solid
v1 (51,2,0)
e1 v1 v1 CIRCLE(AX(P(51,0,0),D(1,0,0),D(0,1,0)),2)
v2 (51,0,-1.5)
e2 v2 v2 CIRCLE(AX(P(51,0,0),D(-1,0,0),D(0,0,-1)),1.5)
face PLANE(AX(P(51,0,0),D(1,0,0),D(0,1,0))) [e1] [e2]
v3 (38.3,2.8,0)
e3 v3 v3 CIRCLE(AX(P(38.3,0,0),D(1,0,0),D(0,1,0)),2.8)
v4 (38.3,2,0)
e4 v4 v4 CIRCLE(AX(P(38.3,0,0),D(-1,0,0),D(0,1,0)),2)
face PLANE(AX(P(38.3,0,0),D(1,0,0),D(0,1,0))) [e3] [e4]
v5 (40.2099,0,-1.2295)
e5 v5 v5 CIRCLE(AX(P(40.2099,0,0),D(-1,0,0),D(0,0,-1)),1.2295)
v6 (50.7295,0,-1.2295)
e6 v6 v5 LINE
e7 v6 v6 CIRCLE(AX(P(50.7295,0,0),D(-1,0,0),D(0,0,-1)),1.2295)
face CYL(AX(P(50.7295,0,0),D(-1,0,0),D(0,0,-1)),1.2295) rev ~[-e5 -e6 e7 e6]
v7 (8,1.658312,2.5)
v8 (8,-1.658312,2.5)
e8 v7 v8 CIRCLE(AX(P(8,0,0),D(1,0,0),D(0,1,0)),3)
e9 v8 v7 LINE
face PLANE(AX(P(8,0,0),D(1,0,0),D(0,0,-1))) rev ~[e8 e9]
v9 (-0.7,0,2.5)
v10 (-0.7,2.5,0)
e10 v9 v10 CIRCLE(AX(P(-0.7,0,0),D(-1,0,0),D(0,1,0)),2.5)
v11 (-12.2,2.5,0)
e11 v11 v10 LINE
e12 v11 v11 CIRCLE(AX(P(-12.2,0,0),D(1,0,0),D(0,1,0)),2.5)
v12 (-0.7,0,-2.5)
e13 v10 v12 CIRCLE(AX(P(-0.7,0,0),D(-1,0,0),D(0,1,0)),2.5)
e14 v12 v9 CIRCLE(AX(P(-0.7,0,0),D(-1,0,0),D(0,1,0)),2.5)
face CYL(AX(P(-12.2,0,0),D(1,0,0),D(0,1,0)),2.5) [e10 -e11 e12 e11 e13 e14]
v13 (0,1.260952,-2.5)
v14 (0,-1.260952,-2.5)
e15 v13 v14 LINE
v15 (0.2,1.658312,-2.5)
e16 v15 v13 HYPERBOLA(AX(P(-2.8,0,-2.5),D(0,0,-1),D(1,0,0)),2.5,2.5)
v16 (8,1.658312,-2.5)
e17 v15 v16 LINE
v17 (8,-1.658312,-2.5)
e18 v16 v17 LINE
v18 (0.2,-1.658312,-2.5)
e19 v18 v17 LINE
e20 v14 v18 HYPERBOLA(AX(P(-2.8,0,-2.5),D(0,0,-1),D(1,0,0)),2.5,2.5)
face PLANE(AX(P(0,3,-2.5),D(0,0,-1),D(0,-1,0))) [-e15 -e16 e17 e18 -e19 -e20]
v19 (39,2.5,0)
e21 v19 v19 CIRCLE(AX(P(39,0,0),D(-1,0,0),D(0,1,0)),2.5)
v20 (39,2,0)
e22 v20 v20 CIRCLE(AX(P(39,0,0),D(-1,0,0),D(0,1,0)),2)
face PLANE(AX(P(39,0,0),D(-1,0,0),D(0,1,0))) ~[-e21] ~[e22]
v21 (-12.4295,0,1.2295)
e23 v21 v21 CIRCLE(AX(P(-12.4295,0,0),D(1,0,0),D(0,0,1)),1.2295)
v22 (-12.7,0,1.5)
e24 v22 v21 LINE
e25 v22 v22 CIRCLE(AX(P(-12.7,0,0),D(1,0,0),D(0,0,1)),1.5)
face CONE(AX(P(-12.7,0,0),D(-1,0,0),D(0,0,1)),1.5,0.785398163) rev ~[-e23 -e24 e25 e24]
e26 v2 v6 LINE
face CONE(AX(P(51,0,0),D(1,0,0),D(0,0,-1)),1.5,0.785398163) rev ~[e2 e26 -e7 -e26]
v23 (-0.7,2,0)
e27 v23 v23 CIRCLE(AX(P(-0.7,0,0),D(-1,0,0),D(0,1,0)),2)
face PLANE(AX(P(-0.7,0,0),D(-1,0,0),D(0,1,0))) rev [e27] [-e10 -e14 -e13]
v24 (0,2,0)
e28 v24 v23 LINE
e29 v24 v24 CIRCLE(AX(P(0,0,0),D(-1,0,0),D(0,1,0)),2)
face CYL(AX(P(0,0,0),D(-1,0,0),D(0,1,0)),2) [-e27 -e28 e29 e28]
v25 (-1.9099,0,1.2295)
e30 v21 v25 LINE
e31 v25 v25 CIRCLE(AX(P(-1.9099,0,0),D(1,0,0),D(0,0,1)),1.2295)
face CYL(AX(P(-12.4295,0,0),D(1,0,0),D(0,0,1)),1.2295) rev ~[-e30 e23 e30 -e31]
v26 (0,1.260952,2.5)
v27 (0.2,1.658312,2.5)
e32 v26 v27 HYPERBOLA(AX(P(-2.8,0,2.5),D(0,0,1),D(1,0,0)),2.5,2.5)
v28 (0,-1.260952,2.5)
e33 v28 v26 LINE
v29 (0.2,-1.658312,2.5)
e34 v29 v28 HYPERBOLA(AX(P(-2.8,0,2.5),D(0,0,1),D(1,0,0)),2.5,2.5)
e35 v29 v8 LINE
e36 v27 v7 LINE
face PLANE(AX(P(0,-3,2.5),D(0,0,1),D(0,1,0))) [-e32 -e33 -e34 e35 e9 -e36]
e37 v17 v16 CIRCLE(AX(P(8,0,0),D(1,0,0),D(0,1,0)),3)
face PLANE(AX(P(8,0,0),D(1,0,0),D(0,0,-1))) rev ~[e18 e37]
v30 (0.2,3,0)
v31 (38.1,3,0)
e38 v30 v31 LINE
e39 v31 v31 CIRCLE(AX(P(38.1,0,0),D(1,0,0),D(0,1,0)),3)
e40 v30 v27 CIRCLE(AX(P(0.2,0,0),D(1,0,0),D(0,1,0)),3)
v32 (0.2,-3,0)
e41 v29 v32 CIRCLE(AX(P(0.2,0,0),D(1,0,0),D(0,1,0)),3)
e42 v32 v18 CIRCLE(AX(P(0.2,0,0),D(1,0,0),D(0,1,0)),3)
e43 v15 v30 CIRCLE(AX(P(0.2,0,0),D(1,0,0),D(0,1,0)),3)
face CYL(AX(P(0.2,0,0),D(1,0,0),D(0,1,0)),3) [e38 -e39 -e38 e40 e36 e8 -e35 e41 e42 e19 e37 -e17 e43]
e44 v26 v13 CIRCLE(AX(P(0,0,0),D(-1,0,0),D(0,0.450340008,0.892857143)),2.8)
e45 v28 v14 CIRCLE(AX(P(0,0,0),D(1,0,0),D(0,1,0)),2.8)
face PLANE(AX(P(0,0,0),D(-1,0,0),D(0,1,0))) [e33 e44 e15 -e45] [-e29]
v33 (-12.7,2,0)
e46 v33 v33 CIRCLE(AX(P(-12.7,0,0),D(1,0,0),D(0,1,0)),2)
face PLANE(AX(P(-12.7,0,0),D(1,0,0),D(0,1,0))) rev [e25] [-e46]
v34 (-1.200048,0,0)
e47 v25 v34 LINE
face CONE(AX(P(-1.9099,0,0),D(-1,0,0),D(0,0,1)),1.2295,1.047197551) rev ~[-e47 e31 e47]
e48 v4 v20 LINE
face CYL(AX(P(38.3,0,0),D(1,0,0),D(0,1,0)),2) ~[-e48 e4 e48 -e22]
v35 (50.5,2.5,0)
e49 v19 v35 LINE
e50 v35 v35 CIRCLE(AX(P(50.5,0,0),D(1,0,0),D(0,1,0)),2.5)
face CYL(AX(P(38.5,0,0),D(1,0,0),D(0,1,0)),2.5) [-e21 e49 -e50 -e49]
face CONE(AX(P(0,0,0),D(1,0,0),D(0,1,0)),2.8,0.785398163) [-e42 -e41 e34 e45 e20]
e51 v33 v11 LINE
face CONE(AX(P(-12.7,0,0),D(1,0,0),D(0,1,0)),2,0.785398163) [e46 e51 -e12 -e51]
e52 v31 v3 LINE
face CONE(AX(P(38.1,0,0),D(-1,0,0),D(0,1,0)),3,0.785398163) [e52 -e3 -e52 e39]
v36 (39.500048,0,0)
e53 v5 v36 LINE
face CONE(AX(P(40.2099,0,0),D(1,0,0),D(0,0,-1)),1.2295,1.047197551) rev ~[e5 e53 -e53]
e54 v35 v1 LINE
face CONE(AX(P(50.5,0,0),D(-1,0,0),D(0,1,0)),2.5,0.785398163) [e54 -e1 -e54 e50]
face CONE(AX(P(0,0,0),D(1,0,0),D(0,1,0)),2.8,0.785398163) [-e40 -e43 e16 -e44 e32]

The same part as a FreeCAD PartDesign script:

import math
import FreeCAD as App
import Part
import Sketcher
from FreeCAD import Vector
Q = App.Units.Quantity


def add_polygon(sketch, points):
    """Adds a closed chain of lines whose ends are joined by coincident constraints."""
    first, n = sketch.GeometryCount, len(points)
    for a, b in zip(points, points[1:] + points[:1]):
        sketch.addGeometry(Part.LineSegment(App.Vector(*a, 0), App.Vector(*b, 0)), False)
    for i in range(n):
        sketch.addConstraint(Sketcher.Constraint("Coincident", first + i, 2, first + (i + 1) % n, 1))

doc = App.newDocument("Part")
body = doc.addObject("PartDesign::Body", "Body")

sketch1 = doc.addObject("Sketcher::SketchObject", "Sketch")
body.addObject(sketch1)
sketch1.AttachmentSupport = (doc.XY_Plane, [""])
sketch1.MapMode = "FlatFace"
sketch1.addGeometry([
    Part.LineSegment(Vector(-12.7, 0, 0), Vector(51, 0, 0)),
    Part.LineSegment(Vector(51, 0, 0), Vector(51, 2, 0)),
    Part.LineSegment(Vector(51, 2, 0), Vector(50.5, 2.5, 0)),
    Part.LineSegment(Vector(50.5, 2.5, 0), Vector(38.5, 2.5, 0)),
    Part.ArcOfCircle(Part.Circle(Vector(38.5, 2.7, 0), Vector(0, 0, 1), 0.2), math.radians(180), math.radians(270)),
    Part.LineSegment(Vector(38.3, 2.7, 0), Vector(38.3, 2.8, 0)),
    Part.LineSegment(Vector(38.3, 2.8, 0), Vector(38.1, 3, 0)),
    Part.LineSegment(Vector(38.1, 3, 0), Vector(0.2, 3, 0)),
    Part.LineSegment(Vector(0.2, 3, 0), Vector(0, 2.8, 0)),
    Part.LineSegment(Vector(0, 2.8, 0), Vector(0, 2.7, 0)),
    Part.ArcOfCircle(Part.Circle(Vector(-0.2, 2.7, 0), Vector(0, 0, 1), 0.2), math.radians(-90), math.radians(0)),
    Part.LineSegment(Vector(-0.2, 2.5, 0), Vector(-12.2, 2.5, 0)),
    Part.LineSegment(Vector(-12.2, 2.5, 0), Vector(-12.7, 2, 0)),
    Part.LineSegment(Vector(-12.7, 2, 0), Vector(-12.7, 0, 0)),
], False)
sketch1.addConstraint([
    Sketcher.Constraint("Coincident", 0, 2, 1, 1),
    Sketcher.Constraint("Coincident", 1, 2, 2, 1),
    Sketcher.Constraint("Coincident", 2, 2, 3, 1),
    Sketcher.Constraint("Tangent", 3, 2, 4, 2),
    Sketcher.Constraint("Tangent", 4, 1, 5, 1),
    Sketcher.Constraint("Coincident", 5, 2, 6, 1),
    Sketcher.Constraint("Coincident", 6, 2, 7, 1),
    Sketcher.Constraint("Coincident", 7, 2, 8, 1),
    Sketcher.Constraint("Coincident", 8, 2, 9, 1),
    Sketcher.Constraint("Tangent", 9, 2, 10, 2),
    Sketcher.Constraint("Tangent", 10, 1, 11, 1),
    Sketcher.Constraint("Coincident", 11, 2, 12, 1),
    Sketcher.Constraint("Coincident", 12, 2, 13, 1),
    Sketcher.Constraint("Coincident", 13, 2, 0, 1),
    Sketcher.Constraint("Horizontal", 0),
    Sketcher.Constraint("Vertical", 1),
    Sketcher.Constraint("Horizontal", 3),
    Sketcher.Constraint("Vertical", 5),
    Sketcher.Constraint("Horizontal", 7),
    Sketcher.Constraint("Vertical", 9),
    Sketcher.Constraint("Horizontal", 11),
    Sketcher.Constraint("Vertical", 13),
    Sketcher.Constraint("Equal", 4, 10),
    Sketcher.Constraint("PointOnObject", 0, 2, -1),
    Sketcher.Constraint("PointOnObject", 8, 2, -2),
    Sketcher.Constraint("Parallel", 2, 6),
    Sketcher.Constraint("Perpendicular", 6, 8),
    Sketcher.Constraint("Parallel", 8, 12),
    Sketcher.Constraint("Horizontal", 4, 3, 10, 3),
    Sketcher.Constraint("Horizontal", 5, 2, 8, 2),
    Sketcher.Constraint("Horizontal", 1, 2, 12, 2),
    Sketcher.Constraint("Equal", 3, 11),
    Sketcher.Constraint("Equal", 6, 8),
    Sketcher.Constraint("DistanceY", 1, 1, 1, 2, Q("2 mm")),
    Sketcher.Constraint("Radius", 4, Q("0.2 mm")),
    Sketcher.Constraint("DistanceY", 1, 2, 4, 3, Q("0.7 mm")),
    Sketcher.Constraint("DistanceX", 3, 2, 3, 1, Q("12 mm")),
    Sketcher.Constraint("DistanceX", 0, 1, 0, 2, Q("63.7 mm")),
    Sketcher.Constraint("DistanceX", 7, 2, 7, 1, Q("37.9 mm")),
    Sketcher.Constraint("DistanceY", 5, 1, 5, 2, Q("0.1 mm")),
])
revolution = doc.addObject("PartDesign::Revolution", "Revolution")
body.addObject(revolution)
revolution.Profile = sketch1
revolution.ReferenceAxis = (sketch1, ["H_Axis"])
revolution.Angle = 360

sketch2 = doc.addObject("Sketcher::SketchObject", "Sketch001")
body.addObject(sketch2)
sketch2.AttachmentSupport = (doc.YZ_Plane, [""])
sketch2.MapMode = "FlatFace"
sketch2.AttachmentOffset = App.Placement(Vector(0, 0, -12.7), App.Rotation())
sketch2.addGeometry(Part.Circle(Vector(0, 0, 0), Vector(0, 0, 1), 1.2295), False)
sketch2.addConstraint([
    Sketcher.Constraint("Coincident", 0, 3, -1, 1),
    Sketcher.Constraint("Diameter", 0, Q("2.459 mm")),
])
doc.recompute()
hole = doc.addObject("PartDesign::Hole", "Hole")
body.addObject(hole)
hole.Profile = sketch2
hole.ThreadType = "None"
hole.Diameter = 2.459
hole.DepthType = "Dimension"
hole.Depth = 10.7901
hole.DrillPoint = "Angled"
hole.DrillPointAngle = 120
hole.HoleCutType = "Countersink"
hole.HoleCutDiameter = 3
hole.HoleCutCountersinkAngle = 90
hole.Reversed = True

sketch3 = doc.addObject("Sketcher::SketchObject", "Sketch002")
body.addObject(sketch3)
sketch3.AttachmentSupport = (doc.YZ_Plane, [""])
sketch3.MapMode = "FlatFace"
sketch3.AttachmentOffset = App.Placement(Vector(0, 0, 51), App.Rotation())
sketch3.addGeometry(Part.Circle(Vector(0, 0, 0), Vector(0, 0, 1), 1.2295), False)
sketch3.addConstraint([
    Sketcher.Constraint("Coincident", 0, 3, -1, 1),
    Sketcher.Constraint("Diameter", 0, Q("2.459 mm")),
])
doc.recompute()
hole2 = doc.addObject("PartDesign::Hole", "Hole001")
body.addObject(hole2)
hole2.Profile = sketch3
hole2.ThreadType = "None"
hole2.Diameter = 2.459
hole2.DepthType = "Dimension"
hole2.Depth = 10.7901
hole2.DrillPoint = "Angled"
hole2.DrillPointAngle = 120
hole2.HoleCutType = "Countersink"
hole2.HoleCutDiameter = 3
hole2.HoleCutCountersinkAngle = 90

sketch4 = doc.addObject("Sketcher::SketchObject", "Sketch003")
body.addObject(sketch4)
sketch4.AttachmentSupport = (doc.YZ_Plane, [""])
sketch4.MapMode = "FlatFace"
add_polygon(sketch4, [(3, 5), (-6, 5), (-6, -5), (3, -5), (3, -2.5), (-3, -2.5), (-3, 2.5), (3, 2.5)])
sketch4.addConstraint([
    Sketcher.Constraint("Horizontal", 0),
    Sketcher.Constraint("Vertical", 1),
    Sketcher.Constraint("Horizontal", 2),
    Sketcher.Constraint("Vertical", 3),
    Sketcher.Constraint("Horizontal", 4),
    Sketcher.Constraint("Vertical", 5),
    Sketcher.Constraint("Horizontal", 6),
    Sketcher.Constraint("Vertical", 7),
    Sketcher.Constraint("Symmetric", 3, 2, 5, 2, -1, 1),
    Sketcher.Constraint("Symmetric", 2, 2, 7, 2, -1),
    Sketcher.Constraint("DistanceX", 0, 2, 0, 1, Q("9 mm")),
    Sketcher.Constraint("DistanceX", 4, 2, 4, 1, Q("6 mm")),
    Sketcher.Constraint("DistanceY", 1, 2, 1, 1, Q("10 mm")),
    Sketcher.Constraint("DistanceY", 5, 1, 5, 2, Q("5 mm")),
])
pocket1 = doc.addObject("PartDesign::Pocket", "Pocket")
body.addObject(pocket1)
pocket1.Profile = sketch4
pocket1.Length = 16
pocket1.Midplane = True

sketch5 = doc.addObject("Sketcher::SketchObject", "Sketch004")
body.addObject(sketch5)
sketch5.AttachmentSupport = (doc.XY_Plane, [""])
sketch5.MapMode = "FlatFace"
sketch5.addGeometry([
    Part.LineSegment(Vector(39, 2, 0), Vector(39, 2.5, 0)),
    Part.LineSegment(Vector(39, 2.5, 0), Vector(38.5, 2.5, 0)),
    Part.ArcOfCircle(Part.Circle(Vector(38.5, 2.7, 0), Vector(0, 0, 1), 0.2), math.radians(180), math.radians(270)),
    Part.LineSegment(Vector(38.3, 2.7, 0), Vector(38.3, 2, 0)),
    Part.LineSegment(Vector(38.3, 2, 0), Vector(39, 2, 0)),
    Part.LineSegment(Vector(-0.2, 2.5, 0), Vector(-0.7, 2.5, 0)),
    Part.LineSegment(Vector(-0.7, 2.5, 0), Vector(-0.7, 2, 0)),
    Part.LineSegment(Vector(-0.7, 2, 0), Vector(0, 2, 0)),
    Part.LineSegment(Vector(0, 2, 0), Vector(0, 2.7, 0)),
    Part.ArcOfCircle(Part.Circle(Vector(-0.2, 2.7, 0), Vector(0, 0, 1), 0.2), math.radians(-90), math.radians(0)),
], False)
sketch5.addConstraint([
    Sketcher.Constraint("Coincident", 0, 2, 1, 1),
    Sketcher.Constraint("Tangent", 1, 2, 2, 2),
    Sketcher.Constraint("Tangent", 2, 1, 3, 1),
    Sketcher.Constraint("Coincident", 3, 2, 4, 1),
    Sketcher.Constraint("Coincident", 4, 2, 0, 1),
    Sketcher.Constraint("Coincident", 5, 2, 6, 1),
    Sketcher.Constraint("Coincident", 6, 2, 7, 1),
    Sketcher.Constraint("Coincident", 7, 2, 8, 1),
    Sketcher.Constraint("Tangent", 8, 2, 9, 2),
    Sketcher.Constraint("Tangent", 9, 1, 5, 1),
    Sketcher.Constraint("Vertical", 0),
    Sketcher.Constraint("Horizontal", 1),
    Sketcher.Constraint("Vertical", 3),
    Sketcher.Constraint("Horizontal", 4),
    Sketcher.Constraint("Horizontal", 5),
    Sketcher.Constraint("Vertical", 6),
    Sketcher.Constraint("Horizontal", 7),
    Sketcher.Constraint("Vertical", 8),
    Sketcher.Constraint("Equal", 2, 9),
    Sketcher.Constraint("PointOnObject", 7, 2, -2),
    Sketcher.Constraint("Horizontal", 2, 3, 9, 3),
    Sketcher.Constraint("Horizontal", 4, 2, 6, 2),
    Sketcher.Constraint("Equal", 1, 5),
    Sketcher.Constraint("Equal", 5, 0),
    Sketcher.Constraint("DistanceX", 4, 1, 4, 2, Q("0.7 mm")),
    Sketcher.Constraint("DistanceY", -1, 1, 3, 2, Q("2 mm")),
    Sketcher.Constraint("Radius", 2, Q("0.2 mm")),
    Sketcher.Constraint("DistanceX", -1, 1, 0, 2, Q("39 mm")),
])
groove = doc.addObject("PartDesign::Groove", "Groove")
body.addObject(groove)
groove.Profile = sketch5
groove.ReferenceAxis = (sketch5, ["H_Axis"])
groove.Angle = 360

doc.recompute()
